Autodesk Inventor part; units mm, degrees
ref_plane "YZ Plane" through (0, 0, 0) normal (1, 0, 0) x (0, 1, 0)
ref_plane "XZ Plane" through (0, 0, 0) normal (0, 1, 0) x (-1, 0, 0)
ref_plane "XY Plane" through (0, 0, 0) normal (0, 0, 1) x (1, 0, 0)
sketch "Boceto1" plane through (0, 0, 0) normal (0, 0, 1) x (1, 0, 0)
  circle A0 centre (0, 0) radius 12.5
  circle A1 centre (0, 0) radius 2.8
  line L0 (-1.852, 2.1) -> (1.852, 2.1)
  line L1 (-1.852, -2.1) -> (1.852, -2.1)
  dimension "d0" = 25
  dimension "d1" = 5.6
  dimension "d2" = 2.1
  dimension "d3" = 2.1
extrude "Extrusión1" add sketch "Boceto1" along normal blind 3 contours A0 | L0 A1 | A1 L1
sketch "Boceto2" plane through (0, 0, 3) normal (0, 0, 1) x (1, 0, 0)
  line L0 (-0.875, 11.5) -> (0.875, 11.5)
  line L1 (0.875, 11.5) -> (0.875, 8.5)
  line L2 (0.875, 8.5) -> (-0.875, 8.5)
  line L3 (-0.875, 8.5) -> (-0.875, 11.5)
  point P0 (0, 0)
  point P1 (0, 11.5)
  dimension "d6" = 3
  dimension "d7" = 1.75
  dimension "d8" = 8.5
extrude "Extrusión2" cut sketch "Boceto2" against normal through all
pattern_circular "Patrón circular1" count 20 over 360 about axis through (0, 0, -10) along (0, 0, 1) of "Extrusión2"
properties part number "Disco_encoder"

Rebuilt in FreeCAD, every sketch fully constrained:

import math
import FreeCAD as App
import Part
import Sketcher
Q = App.Units.Quantity

doc = App.newDocument("Part")
params = doc.addObject("Spreadsheet::Sheet", "Params")
for row, (alias, value) in enumerate([
    ("sketch1_diameter", "25 mm"),
    ("sketch1_radius", "2.8 mm"),
    ("pad1_length", "3 mm"),
    ("sketch2_height", "3 mm"),
    ("sketch2_width", "1.75 mm"),
], start=1):
    params.set(f"A{row}", alias)
    params.set(f"B{row}", "=" + value)
    params.setAlias(f"B{row}", alias)

body = doc.addObject("PartDesign::Body", "Body")

sketch1 = doc.addObject("Sketcher::SketchObject", "Sketch")
body.addObject(sketch1)
sketch1.AttachmentSupport = (doc.XY_Plane, [""])
sketch1.MapMode = "FlatFace"
sketch1.addGeometry(Part.Circle(App.Vector(0, 0, 0), App.Vector(0, 0, 1), 12.5), False)
sketch1.addGeometry(Part.ArcOfCircle(Part.Circle(App.Vector(0, 0, 0), App.Vector(0, 0, 1), 2.8), math.radians(-49), math.radians(49)), False)
sketch1.addGeometry(Part.LineSegment(App.Vector(1.9, -2.1, 0), App.Vector(-1.9, -2.1, 0)), False)
sketch1.addGeometry(Part.ArcOfCircle(Part.Circle(App.Vector(0, 0, 0), App.Vector(0, 0, 1), 2.8), math.radians(131), math.radians(229)), False)
sketch1.addGeometry(Part.LineSegment(App.Vector(-1.9, 2.1, 0), App.Vector(1.9, 2.1, 0)), False)
sketch1.addConstraint(Sketcher.Constraint("Coincident", 1, 1, 2, 1))
sketch1.addConstraint(Sketcher.Constraint("Coincident", 2, 2, 3, 2))
sketch1.addConstraint(Sketcher.Constraint("Coincident", 3, 1, 4, 1))
sketch1.addConstraint(Sketcher.Constraint("Coincident", 4, 2, 1, 2))
sketch1.addConstraint(Sketcher.Constraint("Horizontal", 2))
sketch1.addConstraint(Sketcher.Constraint("Horizontal", 4))
sketch1.addConstraint(Sketcher.Constraint("Coincident", 0, 3, -1, 1))
sketch1.addConstraint(Sketcher.Constraint("Coincident", 1, 3, -1, 1))
sketch1.addConstraint(Sketcher.Constraint("Coincident", 3, 3, -1, 1))
sketch1.addConstraint(Sketcher.Constraint("Equal", 1, 3))
sketch1.addConstraint(Sketcher.Constraint("Vertical", 2, 2, 3, 1))
sketch1.addConstraint(Sketcher.Constraint("Diameter", 0, Q("25 mm")))
sketch1.addConstraint(Sketcher.Constraint("Radius", 1, Q("2.8 mm")))
sketch1.addConstraint(Sketcher.Constraint("DistanceY", 1, 1, -1, 1, Q("2.1 mm")))
sketch1.setExpression("Constraints[11]", "Params.sketch1_diameter")
sketch1.setExpression("Constraints[12]", "Params.sketch1_radius")
pad1 = doc.addObject("PartDesign::Pad", "Pad")
body.addObject(pad1)
pad1.Profile = sketch1
pad1.setExpression("Length", "Params.pad1_length")

sketch2 = doc.addObject("Sketcher::SketchObject", "Sketch001")
body.addObject(sketch2)
sketch2.AttachmentSupport = (doc.XY_Plane, [""])
sketch2.MapMode = "FlatFace"
sketch2.AttachmentOffset = App.Placement(App.Vector(0, 0, 3), App.Rotation())
sketch2.addGeometry(Part.LineSegment(App.Vector(0.9, 11.5, 0), App.Vector(-0.9, 11.5, 0)), False)
sketch2.addGeometry(Part.LineSegment(App.Vector(-0.9, 11.5, 0), App.Vector(-0.9, 8.5, 0)), False)
sketch2.addGeometry(Part.LineSegment(App.Vector(-0.9, 8.5, 0), App.Vector(0.9, 8.5, 0)), False)
sketch2.addGeometry(Part.LineSegment(App.Vector(0.9, 8.5, 0), App.Vector(0.9, 11.5, 0)), False)
sketch2.addConstraint(Sketcher.Constraint("Coincident", 0, 2, 1, 1))
sketch2.addConstraint(Sketcher.Constraint("Coincident", 1, 2, 2, 1))
sketch2.addConstraint(Sketcher.Constraint("Coincident", 2, 2, 3, 1))
sketch2.addConstraint(Sketcher.Constraint("Coincident", 3, 2, 0, 1))
sketch2.addConstraint(Sketcher.Constraint("Horizontal", 0))
sketch2.addConstraint(Sketcher.Constraint("Vertical", 1))
sketch2.addConstraint(Sketcher.Constraint("Horizontal", 2))
sketch2.addConstraint(Sketcher.Constraint("Vertical", 3))
sketch2.addConstraint(Sketcher.Constraint("DistanceY", 1, 2, 1, 1, Q("3 mm")))
sketch2.addConstraint(Sketcher.Constraint("DistanceX", 0, 2, 0, 1, Q("1.75 mm")))
sketch2.addConstraint(Sketcher.Constraint("DistanceY", -1, 1, 1, 2, Q("8.5 mm")))
sketch2.addConstraint(Sketcher.Constraint("DistanceX", 0, 2, -1, 1, Q("0.875 mm")))
sketch2.setExpression("Constraints[8]", "Params.sketch2_height")
sketch2.setExpression("Constraints[9]", "Params.sketch2_width")
pocket1 = doc.addObject("PartDesign::Pocket", "Pocket")
body.addObject(pocket1)
pocket1.Profile = sketch2
pocket1.Type = "ThroughAll"
doc.recompute()

polarpattern = doc.addObject("PartDesign::PolarPattern", "PolarPattern")
body.addObject(polarpattern)
polarpattern.Originals = [pocket1]
polarpattern.Axis = (doc.Z_Axis, [""])
polarpattern.Angle = 360
polarpattern.Occurrences = 20
body.Tip = polarpattern

doc.recompute()
